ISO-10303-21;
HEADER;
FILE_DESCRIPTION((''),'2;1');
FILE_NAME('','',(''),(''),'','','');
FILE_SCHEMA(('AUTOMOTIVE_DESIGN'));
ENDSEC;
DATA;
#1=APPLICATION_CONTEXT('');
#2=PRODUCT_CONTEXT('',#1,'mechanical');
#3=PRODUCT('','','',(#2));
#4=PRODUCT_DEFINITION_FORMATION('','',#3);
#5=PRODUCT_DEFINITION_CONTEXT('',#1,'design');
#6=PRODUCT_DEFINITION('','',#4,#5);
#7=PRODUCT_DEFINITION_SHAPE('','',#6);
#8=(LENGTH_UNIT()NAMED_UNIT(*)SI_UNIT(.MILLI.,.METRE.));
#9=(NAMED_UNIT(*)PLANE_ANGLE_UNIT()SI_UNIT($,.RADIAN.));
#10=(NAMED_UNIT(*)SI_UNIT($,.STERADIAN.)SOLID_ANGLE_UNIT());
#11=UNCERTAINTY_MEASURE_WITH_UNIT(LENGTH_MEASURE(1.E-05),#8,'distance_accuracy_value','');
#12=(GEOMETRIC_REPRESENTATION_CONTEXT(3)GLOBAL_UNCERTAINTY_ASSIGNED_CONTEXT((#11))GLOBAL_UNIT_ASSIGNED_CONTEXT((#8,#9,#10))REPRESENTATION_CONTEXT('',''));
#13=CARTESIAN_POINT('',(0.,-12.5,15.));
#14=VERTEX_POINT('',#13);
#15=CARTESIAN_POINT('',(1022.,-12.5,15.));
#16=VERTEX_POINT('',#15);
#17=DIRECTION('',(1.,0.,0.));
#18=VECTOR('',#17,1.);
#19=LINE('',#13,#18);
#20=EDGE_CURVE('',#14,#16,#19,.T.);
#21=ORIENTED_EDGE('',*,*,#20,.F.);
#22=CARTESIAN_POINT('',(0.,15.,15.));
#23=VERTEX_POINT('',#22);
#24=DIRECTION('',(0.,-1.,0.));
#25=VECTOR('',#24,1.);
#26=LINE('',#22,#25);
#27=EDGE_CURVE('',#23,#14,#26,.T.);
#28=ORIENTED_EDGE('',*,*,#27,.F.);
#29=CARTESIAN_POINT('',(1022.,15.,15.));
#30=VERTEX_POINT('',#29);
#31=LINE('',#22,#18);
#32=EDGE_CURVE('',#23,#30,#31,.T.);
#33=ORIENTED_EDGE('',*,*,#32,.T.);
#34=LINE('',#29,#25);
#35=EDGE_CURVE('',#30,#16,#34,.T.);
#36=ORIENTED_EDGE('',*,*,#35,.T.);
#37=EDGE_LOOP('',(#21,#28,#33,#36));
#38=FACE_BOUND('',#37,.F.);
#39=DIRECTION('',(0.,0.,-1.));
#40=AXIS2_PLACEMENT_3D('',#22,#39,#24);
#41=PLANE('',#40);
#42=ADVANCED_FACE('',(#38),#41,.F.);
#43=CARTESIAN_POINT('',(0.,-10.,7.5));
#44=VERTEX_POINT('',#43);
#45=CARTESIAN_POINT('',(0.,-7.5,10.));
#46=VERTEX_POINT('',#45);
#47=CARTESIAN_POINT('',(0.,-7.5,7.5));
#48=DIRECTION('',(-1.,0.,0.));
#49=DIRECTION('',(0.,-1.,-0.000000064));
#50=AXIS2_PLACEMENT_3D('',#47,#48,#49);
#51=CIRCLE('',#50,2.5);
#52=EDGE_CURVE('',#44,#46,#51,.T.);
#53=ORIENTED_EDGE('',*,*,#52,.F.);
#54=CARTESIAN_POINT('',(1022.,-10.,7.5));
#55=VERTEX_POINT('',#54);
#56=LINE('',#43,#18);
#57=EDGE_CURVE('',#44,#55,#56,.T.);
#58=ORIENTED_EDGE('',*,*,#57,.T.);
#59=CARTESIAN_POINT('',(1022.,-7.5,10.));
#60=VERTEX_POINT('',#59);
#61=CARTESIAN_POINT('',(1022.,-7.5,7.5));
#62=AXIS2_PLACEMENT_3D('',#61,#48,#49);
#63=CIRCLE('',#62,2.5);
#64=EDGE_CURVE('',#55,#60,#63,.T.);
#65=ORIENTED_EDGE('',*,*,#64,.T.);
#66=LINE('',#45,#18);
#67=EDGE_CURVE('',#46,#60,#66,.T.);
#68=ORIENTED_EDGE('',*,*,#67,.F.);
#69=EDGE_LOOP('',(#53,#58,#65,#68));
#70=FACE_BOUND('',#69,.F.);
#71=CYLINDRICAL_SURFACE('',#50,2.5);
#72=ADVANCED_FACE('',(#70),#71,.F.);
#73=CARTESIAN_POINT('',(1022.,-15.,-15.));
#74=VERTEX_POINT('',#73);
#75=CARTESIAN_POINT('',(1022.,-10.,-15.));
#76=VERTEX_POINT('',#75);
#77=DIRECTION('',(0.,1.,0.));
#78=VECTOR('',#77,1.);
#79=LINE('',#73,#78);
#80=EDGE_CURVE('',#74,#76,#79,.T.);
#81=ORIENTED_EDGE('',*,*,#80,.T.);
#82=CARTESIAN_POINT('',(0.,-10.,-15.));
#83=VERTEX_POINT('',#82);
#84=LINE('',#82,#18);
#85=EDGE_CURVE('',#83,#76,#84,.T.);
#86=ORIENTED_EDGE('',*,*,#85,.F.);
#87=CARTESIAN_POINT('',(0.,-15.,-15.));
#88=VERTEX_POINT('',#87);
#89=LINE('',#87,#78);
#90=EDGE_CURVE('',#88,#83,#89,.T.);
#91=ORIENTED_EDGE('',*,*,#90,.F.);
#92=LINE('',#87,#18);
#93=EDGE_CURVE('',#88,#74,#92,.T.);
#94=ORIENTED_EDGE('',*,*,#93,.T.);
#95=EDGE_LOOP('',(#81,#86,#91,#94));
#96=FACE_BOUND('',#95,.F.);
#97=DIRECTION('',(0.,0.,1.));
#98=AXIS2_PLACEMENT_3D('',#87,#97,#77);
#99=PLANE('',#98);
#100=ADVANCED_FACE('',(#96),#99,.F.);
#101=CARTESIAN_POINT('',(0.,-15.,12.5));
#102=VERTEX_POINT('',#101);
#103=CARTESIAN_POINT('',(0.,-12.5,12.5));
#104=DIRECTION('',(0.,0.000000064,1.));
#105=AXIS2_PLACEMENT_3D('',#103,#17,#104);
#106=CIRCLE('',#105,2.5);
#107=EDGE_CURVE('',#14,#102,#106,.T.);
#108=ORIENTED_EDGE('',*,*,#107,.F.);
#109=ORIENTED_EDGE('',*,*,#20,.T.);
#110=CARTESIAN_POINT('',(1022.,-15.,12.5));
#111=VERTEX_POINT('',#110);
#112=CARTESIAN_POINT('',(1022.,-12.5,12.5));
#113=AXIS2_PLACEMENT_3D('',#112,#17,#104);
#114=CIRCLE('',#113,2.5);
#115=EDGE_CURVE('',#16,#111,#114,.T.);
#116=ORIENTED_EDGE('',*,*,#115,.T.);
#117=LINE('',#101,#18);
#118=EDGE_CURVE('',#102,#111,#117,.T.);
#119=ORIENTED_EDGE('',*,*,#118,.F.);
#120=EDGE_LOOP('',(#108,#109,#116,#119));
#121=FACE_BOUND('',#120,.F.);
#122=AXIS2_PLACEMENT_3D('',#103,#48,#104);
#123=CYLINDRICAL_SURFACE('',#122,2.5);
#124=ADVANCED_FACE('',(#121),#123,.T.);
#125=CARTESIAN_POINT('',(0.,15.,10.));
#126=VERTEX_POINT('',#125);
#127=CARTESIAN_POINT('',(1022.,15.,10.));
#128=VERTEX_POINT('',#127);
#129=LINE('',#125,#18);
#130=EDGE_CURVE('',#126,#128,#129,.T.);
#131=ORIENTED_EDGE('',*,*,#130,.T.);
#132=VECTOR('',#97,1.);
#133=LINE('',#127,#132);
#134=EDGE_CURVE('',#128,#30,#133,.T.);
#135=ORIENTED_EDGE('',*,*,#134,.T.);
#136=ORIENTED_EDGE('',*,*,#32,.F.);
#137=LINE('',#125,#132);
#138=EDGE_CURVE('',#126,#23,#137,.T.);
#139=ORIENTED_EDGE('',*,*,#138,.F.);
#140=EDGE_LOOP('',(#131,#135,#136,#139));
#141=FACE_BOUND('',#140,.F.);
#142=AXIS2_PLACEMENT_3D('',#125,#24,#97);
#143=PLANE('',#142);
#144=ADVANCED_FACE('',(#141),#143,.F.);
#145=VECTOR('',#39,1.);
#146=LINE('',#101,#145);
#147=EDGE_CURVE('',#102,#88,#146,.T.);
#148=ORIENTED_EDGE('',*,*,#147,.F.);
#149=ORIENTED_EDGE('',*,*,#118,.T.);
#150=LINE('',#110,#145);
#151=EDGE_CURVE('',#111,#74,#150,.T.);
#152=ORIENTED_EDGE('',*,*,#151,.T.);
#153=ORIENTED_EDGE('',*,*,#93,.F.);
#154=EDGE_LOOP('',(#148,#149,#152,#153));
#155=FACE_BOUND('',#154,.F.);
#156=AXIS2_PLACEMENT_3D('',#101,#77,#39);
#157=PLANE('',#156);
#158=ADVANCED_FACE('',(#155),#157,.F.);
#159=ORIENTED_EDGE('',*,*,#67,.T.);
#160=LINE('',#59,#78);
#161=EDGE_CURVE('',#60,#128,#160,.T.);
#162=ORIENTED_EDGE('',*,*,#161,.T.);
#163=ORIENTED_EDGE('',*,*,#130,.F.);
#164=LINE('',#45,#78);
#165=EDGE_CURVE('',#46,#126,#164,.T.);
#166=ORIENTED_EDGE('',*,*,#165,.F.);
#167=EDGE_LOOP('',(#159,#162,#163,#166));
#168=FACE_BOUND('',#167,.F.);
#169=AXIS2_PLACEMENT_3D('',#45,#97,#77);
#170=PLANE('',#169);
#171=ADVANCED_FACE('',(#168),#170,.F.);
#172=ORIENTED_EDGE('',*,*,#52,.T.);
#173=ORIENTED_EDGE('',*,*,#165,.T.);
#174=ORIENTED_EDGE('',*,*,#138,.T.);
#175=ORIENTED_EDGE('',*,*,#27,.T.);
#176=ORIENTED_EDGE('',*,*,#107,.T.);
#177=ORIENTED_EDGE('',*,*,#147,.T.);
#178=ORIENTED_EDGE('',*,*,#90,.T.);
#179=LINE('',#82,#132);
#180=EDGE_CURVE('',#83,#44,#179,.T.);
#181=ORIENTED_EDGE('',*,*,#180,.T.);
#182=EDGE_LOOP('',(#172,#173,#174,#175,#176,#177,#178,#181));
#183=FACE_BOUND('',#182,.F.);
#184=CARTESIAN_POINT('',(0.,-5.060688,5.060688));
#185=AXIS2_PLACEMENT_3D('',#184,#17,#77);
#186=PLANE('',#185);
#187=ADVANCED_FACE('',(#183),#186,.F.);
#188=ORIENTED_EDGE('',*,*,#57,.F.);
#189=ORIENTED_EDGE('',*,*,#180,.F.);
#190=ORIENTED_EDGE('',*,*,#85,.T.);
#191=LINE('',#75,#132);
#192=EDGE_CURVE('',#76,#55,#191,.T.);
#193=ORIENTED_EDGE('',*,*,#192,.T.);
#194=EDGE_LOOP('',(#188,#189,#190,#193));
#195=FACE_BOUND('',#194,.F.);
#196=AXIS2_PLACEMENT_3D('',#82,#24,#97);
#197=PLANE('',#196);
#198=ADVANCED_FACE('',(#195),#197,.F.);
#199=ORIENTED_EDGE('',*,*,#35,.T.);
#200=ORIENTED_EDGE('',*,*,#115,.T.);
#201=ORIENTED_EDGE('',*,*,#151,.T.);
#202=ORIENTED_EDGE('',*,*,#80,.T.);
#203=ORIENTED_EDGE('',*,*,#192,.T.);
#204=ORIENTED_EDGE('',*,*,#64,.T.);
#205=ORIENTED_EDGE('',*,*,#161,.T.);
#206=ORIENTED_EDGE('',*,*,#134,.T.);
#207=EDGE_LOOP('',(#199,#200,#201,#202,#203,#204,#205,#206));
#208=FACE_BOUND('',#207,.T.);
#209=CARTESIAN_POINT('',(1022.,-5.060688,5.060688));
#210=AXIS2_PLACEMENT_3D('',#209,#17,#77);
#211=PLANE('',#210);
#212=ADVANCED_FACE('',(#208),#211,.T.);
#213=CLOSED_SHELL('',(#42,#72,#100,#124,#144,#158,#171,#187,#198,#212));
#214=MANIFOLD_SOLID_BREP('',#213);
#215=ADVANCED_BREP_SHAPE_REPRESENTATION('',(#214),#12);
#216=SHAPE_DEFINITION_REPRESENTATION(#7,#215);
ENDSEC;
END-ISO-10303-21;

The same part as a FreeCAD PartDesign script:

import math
import FreeCAD as App
import Part
import Sketcher
from FreeCAD import Vector

doc = App.newDocument("Part")
params = doc.addObject("Spreadsheet::Sheet", "Params")
for row, (alias, value) in enumerate([
    ("sketch1_radius", "2.5 mm"),
    ("sketch1_width", "5 mm"),
    ("sketch1_width2", "27.5 mm"),
    ("pad1_length", "1022 mm"),
], start=1):
    params.set(f"A{row}", alias)
    params.set(f"B{row}", "=" + value)
    params.setAlias(f"B{row}", alias)

body = doc.addObject("PartDesign::Body", "Body")

# Sketch on YZ plane
sketch1 = body.newObject("Sketcher::SketchObject", "Sketch")
sketch1.AttachmentSupport = (doc.getObject("YZ_Plane"), [""])
sketch1.MapMode = "FlatFace"
sketch1.addGeometry([
    Part.LineSegment(Vector(15, 10, 0), Vector(15, 15, 0)),  # 0
    Part.LineSegment(Vector(15, 15, 0), Vector(-12.5, 15, 0)),  # 1
    Part.ArcOfCircle(Part.Circle(Vector(-12.5, 12.5, 0), Vector(0, 0, 1), 2.5), math.radians(90), math.radians(180)),  # 2
    Part.LineSegment(Vector(-15, 12.5, 0), Vector(-15, -15, 0)),  # 3
    Part.LineSegment(Vector(-15, -15, 0), Vector(-10, -15, 0)),  # 4
    Part.LineSegment(Vector(-10, -15, 0), Vector(-10, 7.5, 0)),  # 5
    Part.ArcOfCircle(Part.Circle(Vector(-7.5, 7.5, 0), Vector(0, 0, 1), 2.5), math.radians(90), math.radians(180)),  # 6
    Part.LineSegment(Vector(-7.5, 10, 0), Vector(15, 10, 0)),  # 7
], False)
sketch1.addConstraint([
    Sketcher.Constraint("Coincident", 0, 2, 1, 1),
    Sketcher.Constraint("Tangent", 1, 2, 2, 1),
    Sketcher.Constraint("Tangent", 2, 2, 3, 1),
    Sketcher.Constraint("Coincident", 3, 2, 4, 1),
    Sketcher.Constraint("Coincident", 4, 2, 5, 1),
    Sketcher.Constraint("Tangent", 5, 2, 6, 2),
    Sketcher.Constraint("Tangent", 6, 1, 7, 1),
    Sketcher.Constraint("Coincident", 7, 2, 0, 1),
    Sketcher.Constraint("Vertical", 0),
    Sketcher.Constraint("Horizontal", 1),
    Sketcher.Constraint("Vertical", 3),
    Sketcher.Constraint("Horizontal", 4),
    Sketcher.Constraint("Vertical", 5),
    Sketcher.Constraint("Horizontal", 7),
    Sketcher.Constraint("Equal", 2, 6),
    Sketcher.Constraint("Symmetric", 0, 2, 3, 2, -1, 1),
    Sketcher.Constraint("Equal", 4, 0),
    Sketcher.Constraint("Equal", 1, 3),
    Sketcher.Constraint("Radius", 2, 2.5),
    Sketcher.Constraint("DistanceX", 4, 1, 4, 2, 5.0),
    Sketcher.Constraint("DistanceX", 1, 2, 1, 1, 27.5),
])
sketch1.setExpression("Constraints[18]", "Params.sketch1_radius")
sketch1.setExpression("Constraints[19]", "Params.sketch1_width")
sketch1.setExpression("Constraints[20]", "Params.sketch1_width2")
pad1 = body.newObject("PartDesign::Pad", "Pad")
pad1.Profile = sketch1
pad1.setExpression("Length", "Params.pad1_length")

doc.recompute()
